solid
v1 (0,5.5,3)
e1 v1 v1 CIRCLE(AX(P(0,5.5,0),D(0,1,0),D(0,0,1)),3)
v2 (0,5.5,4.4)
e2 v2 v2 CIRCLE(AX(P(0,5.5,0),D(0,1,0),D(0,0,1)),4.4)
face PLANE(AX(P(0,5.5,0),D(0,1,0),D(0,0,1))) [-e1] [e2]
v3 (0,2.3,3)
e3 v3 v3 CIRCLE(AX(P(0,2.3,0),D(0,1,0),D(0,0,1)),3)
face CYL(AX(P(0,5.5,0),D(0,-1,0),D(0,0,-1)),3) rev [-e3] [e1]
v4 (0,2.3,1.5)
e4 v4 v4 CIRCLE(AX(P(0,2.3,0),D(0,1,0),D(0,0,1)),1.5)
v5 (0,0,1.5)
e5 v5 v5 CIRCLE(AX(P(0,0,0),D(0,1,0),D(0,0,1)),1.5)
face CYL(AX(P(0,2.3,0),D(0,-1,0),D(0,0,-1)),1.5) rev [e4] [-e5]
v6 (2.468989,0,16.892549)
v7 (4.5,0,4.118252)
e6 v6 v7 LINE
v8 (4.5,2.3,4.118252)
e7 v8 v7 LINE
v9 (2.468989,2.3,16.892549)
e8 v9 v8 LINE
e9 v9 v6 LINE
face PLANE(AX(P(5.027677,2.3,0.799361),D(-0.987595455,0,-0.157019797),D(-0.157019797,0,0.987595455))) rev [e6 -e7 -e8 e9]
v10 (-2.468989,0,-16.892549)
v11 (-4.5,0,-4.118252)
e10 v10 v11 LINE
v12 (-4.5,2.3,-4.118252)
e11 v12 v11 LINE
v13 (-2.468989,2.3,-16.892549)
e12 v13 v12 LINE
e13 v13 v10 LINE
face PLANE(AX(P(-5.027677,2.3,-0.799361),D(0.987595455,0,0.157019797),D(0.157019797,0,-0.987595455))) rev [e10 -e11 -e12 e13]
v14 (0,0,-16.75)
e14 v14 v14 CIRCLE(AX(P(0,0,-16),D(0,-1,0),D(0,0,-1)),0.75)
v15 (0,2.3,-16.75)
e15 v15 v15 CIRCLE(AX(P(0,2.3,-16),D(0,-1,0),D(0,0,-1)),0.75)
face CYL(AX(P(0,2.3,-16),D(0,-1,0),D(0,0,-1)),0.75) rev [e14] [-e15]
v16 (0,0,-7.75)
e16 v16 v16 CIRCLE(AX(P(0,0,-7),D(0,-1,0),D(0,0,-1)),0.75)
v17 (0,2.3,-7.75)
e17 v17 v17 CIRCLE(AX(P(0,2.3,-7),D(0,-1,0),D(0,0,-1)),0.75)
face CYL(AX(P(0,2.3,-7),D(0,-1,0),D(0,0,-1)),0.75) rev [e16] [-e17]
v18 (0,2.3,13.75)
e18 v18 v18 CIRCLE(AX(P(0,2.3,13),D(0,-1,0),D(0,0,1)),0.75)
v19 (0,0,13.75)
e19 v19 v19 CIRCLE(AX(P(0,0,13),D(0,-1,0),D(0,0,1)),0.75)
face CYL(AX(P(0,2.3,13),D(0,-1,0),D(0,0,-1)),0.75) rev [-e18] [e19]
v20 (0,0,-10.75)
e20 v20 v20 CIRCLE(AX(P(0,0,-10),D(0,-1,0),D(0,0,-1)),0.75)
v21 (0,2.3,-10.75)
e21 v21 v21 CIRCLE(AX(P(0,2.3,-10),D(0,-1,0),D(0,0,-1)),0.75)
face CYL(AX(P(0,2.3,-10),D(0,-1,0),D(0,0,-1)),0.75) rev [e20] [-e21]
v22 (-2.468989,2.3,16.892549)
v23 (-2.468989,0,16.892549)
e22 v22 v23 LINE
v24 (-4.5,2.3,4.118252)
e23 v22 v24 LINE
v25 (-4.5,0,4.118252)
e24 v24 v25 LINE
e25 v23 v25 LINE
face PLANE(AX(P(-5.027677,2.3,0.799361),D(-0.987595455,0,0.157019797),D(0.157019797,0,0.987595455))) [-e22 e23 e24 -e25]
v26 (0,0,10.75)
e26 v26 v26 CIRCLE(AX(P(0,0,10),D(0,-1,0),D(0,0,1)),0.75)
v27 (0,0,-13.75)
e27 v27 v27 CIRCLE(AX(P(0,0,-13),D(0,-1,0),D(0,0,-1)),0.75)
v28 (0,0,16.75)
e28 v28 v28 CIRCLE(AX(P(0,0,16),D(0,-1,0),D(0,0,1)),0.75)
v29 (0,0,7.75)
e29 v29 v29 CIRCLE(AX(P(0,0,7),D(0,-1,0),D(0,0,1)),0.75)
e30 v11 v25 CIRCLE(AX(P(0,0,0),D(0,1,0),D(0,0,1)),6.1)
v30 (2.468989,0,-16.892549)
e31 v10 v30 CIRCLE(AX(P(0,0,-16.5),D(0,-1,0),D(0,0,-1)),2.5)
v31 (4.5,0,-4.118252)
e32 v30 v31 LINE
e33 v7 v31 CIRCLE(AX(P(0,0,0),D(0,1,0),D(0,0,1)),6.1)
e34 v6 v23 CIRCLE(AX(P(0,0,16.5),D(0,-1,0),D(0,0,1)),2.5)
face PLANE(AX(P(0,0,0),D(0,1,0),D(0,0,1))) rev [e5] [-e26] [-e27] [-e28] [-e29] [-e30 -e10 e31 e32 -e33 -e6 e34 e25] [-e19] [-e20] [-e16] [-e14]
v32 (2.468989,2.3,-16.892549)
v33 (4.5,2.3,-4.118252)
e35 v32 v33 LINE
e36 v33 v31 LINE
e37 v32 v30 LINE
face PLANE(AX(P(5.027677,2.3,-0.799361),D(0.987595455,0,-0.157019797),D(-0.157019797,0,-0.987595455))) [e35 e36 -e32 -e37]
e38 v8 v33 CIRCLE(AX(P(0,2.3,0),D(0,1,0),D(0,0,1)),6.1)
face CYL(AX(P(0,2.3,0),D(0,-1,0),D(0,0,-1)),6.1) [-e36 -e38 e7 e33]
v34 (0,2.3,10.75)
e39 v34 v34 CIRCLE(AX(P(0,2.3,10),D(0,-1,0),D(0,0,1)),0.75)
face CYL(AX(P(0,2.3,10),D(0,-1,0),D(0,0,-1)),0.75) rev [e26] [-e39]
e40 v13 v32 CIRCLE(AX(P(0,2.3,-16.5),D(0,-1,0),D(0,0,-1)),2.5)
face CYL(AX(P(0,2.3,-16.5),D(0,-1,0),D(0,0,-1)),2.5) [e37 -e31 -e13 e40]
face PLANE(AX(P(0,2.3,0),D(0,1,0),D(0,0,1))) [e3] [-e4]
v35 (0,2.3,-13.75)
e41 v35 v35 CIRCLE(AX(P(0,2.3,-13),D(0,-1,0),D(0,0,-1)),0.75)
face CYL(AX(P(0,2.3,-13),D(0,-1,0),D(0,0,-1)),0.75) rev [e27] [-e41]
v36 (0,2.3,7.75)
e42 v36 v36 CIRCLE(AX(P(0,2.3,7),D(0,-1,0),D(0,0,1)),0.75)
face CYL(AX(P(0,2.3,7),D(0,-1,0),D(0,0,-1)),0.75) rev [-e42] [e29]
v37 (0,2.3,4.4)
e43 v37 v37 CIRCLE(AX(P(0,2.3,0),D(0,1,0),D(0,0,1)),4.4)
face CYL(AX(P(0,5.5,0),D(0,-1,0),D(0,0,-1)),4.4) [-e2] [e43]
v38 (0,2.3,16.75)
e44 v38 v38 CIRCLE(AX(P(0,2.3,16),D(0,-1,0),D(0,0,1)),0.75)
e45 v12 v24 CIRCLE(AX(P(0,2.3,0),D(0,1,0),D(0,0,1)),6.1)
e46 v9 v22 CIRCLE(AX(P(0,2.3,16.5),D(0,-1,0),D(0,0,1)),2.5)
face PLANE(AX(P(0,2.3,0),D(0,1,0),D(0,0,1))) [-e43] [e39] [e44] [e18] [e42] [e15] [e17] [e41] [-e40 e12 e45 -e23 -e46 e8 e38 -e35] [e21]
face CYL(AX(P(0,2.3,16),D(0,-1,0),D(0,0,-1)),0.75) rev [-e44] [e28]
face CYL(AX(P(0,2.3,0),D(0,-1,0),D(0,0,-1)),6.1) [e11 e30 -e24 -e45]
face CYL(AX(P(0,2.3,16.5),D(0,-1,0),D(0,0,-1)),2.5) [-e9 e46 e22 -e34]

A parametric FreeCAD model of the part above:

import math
import FreeCAD as App
import Part
import Sketcher

V = App.Vector
Q = App.Units.Quantity

doc = App.newDocument("Part")
body = doc.addObject("PartDesign::Body", "Body")

# Sketch on XZ plane
sketch1 = body.newObject("Sketcher::SketchObject", "Sketch")
sketch1.AttachmentSupport = (doc.getObject("XZ_Plane"), [""])
sketch1.MapMode = "FlatFace"
sketch1.addGeometry(Part.Circle(V(0, 0, 0), V(0, 0, 1), 6.1), False)
sketch1.addGeometry(Part.Circle(V(0, 0, 0), V(0, 0, 1), 1.5), False)
sketch1.addConstraint(Sketcher.Constraint("Coincident", 0, 3, -1, 1))
sketch1.addConstraint(Sketcher.Constraint("Coincident", 1, 3, -1, 1))
sketch1.addConstraint(Sketcher.Constraint("Diameter", 1, Q("3 mm")))
sketch1.addConstraint(Sketcher.Constraint("Diameter", 0, Q("12.2 mm")))
pad1 = body.newObject("PartDesign::Pad", "Pad")
pad1.Profile = sketch1
pad1.Length = 2.3
pad1.Reversed = True

# Sketch on XZ plane
sketch2 = body.newObject("Sketcher::SketchObject", "Sketch001")
sketch2.AttachmentSupport = (doc.getObject("XZ_Plane"), [""])
sketch2.MapMode = "FlatFace"
sketch2.AttachmentOffset = App.Placement(V(0, 0, -2.3), App.Rotation())
sketch2.addGeometry(Part.Circle(V(0, 0, 0), V(0, 0, 1), 4.4), False)
sketch2.addGeometry(Part.Circle(V(0, 0, 0), V(0, 0, 1), 3), False)
sketch2.addConstraint(Sketcher.Constraint("Coincident", 0, 3, -1, 1))
sketch2.addConstraint(Sketcher.Constraint("Coincident", 1, 3, -1, 1))
sketch2.addConstraint(Sketcher.Constraint("Diameter", 1, Q("6 mm")))
sketch2.addConstraint(Sketcher.Constraint("Diameter", 0, Q("8.8 mm")))
pad2 = body.newObject("PartDesign::Pad", "Pad001")
pad2.Profile = sketch2
pad2.Length = 3.2
pad2.Reversed = True

# Sketch on XZ plane
sketch3 = body.newObject("Sketcher::SketchObject", "Sketch002")
sketch3.AttachmentSupport = (doc.getObject("XZ_Plane"), [""])
sketch3.MapMode = "FlatFace"
sketch3.addGeometry(Part.LineSegment(V(-4.5, -4.1, 0), V(-2.5, -16.9, 0)), False)
sketch3.addGeometry(Part.ArcOfCircle(Part.Circle(V(0, -16.5, 0), V(0, 0, 1), 2.5), math.radians(-171), math.radians(-9)), False)
sketch3.addGeometry(Part.LineSegment(V(2.5, -16.9, 0), V(4.5, -4.1, 0)), False)
sketch3.addGeometry(Part.ArcOfCircle(Part.Circle(V(0, 0, 0), V(0, 0, 1), 6.1), math.radians(-138), math.radians(-42)), False)
sketch3.addGeometry(Part.Circle(V(0, -16, 0), V(0, 0, 1), 0.8), False)
sketch3.addGeometry(Part.Circle(V(0, -13, 0), V(0, 0, 1), 0.8), False)
sketch3.addGeometry(Part.Circle(V(0, -10, 0), V(0, 0, 1), 0.8), False)
sketch3.addGeometry(Part.Circle(V(0, -7, 0), V(0, 0, 1), 0.8), False)
sketch3.addConstraint(Sketcher.Constraint("Tangent", 0, 2, 1, 1))
sketch3.addConstraint(Sketcher.Constraint("Tangent", 1, 2, 2, 1))
sketch3.addConstraint(Sketcher.Constraint("Coincident", 2, 2, 3, 2))
sketch3.addConstraint(Sketcher.Constraint("Coincident", 3, 1, 0, 1))
sketch3.addConstraint(Sketcher.Constraint("Coincident", 3, 3, -1, 1))
sketch3.addConstraint(Sketcher.Constraint("Equal", 4, 5))
sketch3.addConstraint(Sketcher.Constraint("Equal", 5, 6))
sketch3.addConstraint(Sketcher.Constraint("Equal", 6, 7))
sketch3.addConstraint(Sketcher.Constraint("Symmetric", 0, 2, 1, 2, -2))
sketch3.addConstraint(Sketcher.Constraint("PointOnObject", 4, 3, -2))
sketch3.addConstraint(Sketcher.Constraint("PointOnObject", 5, 3, -2))
sketch3.addConstraint(Sketcher.Constraint("PointOnObject", 6, 3, -2))
sketch3.addConstraint(Sketcher.Constraint("PointOnObject", 7, 3, -2))
sketch3.addConstraint(Sketcher.Constraint("Diameter", 4, Q("1.5 mm")))
sketch3.addConstraint(Sketcher.Constraint("Radius", 1, Q("2.5 mm")))
sketch3.addConstraint(Sketcher.Constraint("Radius", 3, Q("6.1 mm")))
sketch3.addConstraint(Sketcher.Constraint("DistanceY", 4, 3, -1, 1, Q("16 mm")))
sketch3.addConstraint(Sketcher.Constraint("DistanceY", 5, 3, -1, 1, Q("13 mm")))
sketch3.addConstraint(Sketcher.Constraint("DistanceY", 6, 3, -1, 1, Q("10 mm")))
sketch3.addConstraint(Sketcher.Constraint("DistanceY", 7, 3, -1, 1, Q("7 mm")))
sketch3.addConstraint(Sketcher.Constraint("DistanceX", 3, 1, 2, 2, Q("9 mm")))
sketch3.addConstraint(Sketcher.Constraint("DistanceY", 1, 3, -1, 1, Q("16.5 mm")))
pad3 = body.newObject("PartDesign::Pad", "Pad002")
pad3.Profile = sketch3
pad3.Length = 2.3
pad3.Reversed = True
doc.recompute()

polarpattern = body.newObject("PartDesign::PolarPattern", "PolarPattern")
polarpattern.Originals = [pad3]
polarpattern.Axis = (doc.getObject("Y_Axis"), [""])
polarpattern.Angle = 360
polarpattern.Occurrences = 2
body.Tip = polarpattern

doc.recompute()
